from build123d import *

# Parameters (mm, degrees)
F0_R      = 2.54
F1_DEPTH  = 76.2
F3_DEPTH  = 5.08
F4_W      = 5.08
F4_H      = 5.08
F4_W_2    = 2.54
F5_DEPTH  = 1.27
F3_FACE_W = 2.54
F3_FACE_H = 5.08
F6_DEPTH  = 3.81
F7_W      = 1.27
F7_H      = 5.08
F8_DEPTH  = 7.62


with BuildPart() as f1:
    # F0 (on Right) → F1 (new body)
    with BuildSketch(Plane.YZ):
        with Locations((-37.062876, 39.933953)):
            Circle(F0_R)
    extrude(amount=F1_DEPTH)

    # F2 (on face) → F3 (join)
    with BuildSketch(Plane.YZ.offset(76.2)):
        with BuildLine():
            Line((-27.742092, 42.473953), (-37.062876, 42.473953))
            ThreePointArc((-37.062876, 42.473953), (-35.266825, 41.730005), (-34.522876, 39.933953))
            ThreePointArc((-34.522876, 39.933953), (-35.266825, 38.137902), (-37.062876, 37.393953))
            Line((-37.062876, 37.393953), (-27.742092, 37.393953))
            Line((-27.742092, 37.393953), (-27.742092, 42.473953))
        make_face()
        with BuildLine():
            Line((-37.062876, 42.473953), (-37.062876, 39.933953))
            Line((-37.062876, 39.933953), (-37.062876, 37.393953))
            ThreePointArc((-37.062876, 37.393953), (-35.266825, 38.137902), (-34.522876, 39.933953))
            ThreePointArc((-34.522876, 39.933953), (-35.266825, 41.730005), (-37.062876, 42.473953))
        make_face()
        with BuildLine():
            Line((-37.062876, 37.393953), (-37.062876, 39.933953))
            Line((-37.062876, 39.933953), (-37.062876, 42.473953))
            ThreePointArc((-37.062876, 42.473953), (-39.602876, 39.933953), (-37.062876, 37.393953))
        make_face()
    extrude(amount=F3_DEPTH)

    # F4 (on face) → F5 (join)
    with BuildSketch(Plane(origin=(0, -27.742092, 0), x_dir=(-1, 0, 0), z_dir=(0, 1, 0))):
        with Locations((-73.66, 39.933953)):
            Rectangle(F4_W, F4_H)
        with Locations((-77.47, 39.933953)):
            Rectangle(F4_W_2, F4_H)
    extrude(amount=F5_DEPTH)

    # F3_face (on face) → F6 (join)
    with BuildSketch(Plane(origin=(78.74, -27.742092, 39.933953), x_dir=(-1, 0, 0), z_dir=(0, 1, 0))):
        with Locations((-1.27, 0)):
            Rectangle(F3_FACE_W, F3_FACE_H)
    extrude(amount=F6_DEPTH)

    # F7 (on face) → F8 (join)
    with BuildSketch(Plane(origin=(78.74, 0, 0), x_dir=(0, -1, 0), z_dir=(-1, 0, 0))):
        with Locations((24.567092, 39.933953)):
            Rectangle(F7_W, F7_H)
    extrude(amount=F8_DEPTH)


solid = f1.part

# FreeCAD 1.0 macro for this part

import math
import FreeCAD as App
import Part
import Sketcher
from FreeCAD import Vector
Q = App.Units.Quantity

doc = App.newDocument("Part")
params = doc.addObject("Spreadsheet::Sheet", "Params")
for row, (alias, value) in enumerate([
    ("sketch1_diameter", "0.2 in"),
    ("pad1_length", "3 in"),
    ("sketch2_radius", "0.1 in"),
    ("pad2_length", "0.2 in"),
    ("sketch3_width", "0.3 in"),
    ("sketch3_height", "0.2 in"),
    ("pad3_length", "0.05 in"),
    ("sketch4_width", "0.1 in"),
    ("sketch4_height", "0.2 in"),
    ("pad4_length", "0.15 in"),
    ("sketch5_height", "0.2 in"),
    ("sketch5_width", "0.05 in"),
    ("pad5_length", "0.3 in"),
], start=1):
    params.set(f"A{row}", alias)
    params.set(f"B{row}", "=" + value)
    params.setAlias(f"B{row}", alias)

body = doc.addObject("PartDesign::Body", "Body")

# Sketch on YZ plane
sketch1 = body.newObject("Sketcher::SketchObject", "Sketch")
sketch1.AttachmentSupport = (doc.getObject("YZ_Plane"), [""])
sketch1.MapMode = "FlatFace"
sketch1.addGeometry(Part.Circle(Vector(-37.1, 39.9, 0), Vector(0, 0, 1), 2.5), False)
sketch1.addConstraint([
    Sketcher.Constraint("Diameter", 0, Q("0.2 in")),
    Sketcher.Constraint("DistanceX", 0, 3, -1, 1, Q("37.062876 mm")),
    Sketcher.Constraint("DistanceY", -1, 1, 0, 3, Q("39.933953 mm")),
])
sketch1.setExpression("Constraints[0]", "Params.sketch1_diameter")
pad1 = body.newObject("PartDesign::Pad", "Pad")
pad1.Profile = sketch1
pad1.setExpression("Length", "Params.pad1_length")

# Sketch on YZ plane
sketch2 = body.newObject("Sketcher::SketchObject", "Sketch001")
sketch2.AttachmentSupport = (doc.getObject("YZ_Plane"), [""])
sketch2.MapMode = "FlatFace"
sketch2.AttachmentOffset = App.Placement(Vector(0, 0, 3 * 25.4), App.Rotation())
sketch2.addGeometry([
    Part.LineSegment(Vector(-27.7, 42.5, 0), Vector(-37.1, 42.5, 0)),
    Part.ArcOfCircle(Part.Circle(Vector(-37.1, 39.9, 0), Vector(0, 0, 1), 2.5), math.radians(90), math.radians(270)),
    Part.LineSegment(Vector(-37.1, 37.4, 0), Vector(-27.7, 37.4, 0)),
    Part.LineSegment(Vector(-27.7, 37.4, 0), Vector(-27.7, 42.5, 0)),
], False)
sketch2.addConstraint([
    Sketcher.Constraint("Tangent", 0, 2, 1, 1),
    Sketcher.Constraint("Tangent", 1, 2, 2, 1),
    Sketcher.Constraint("Coincident", 2, 2, 3, 1),
    Sketcher.Constraint("Coincident", 3, 2, 0, 1),
    Sketcher.Constraint("Horizontal", 0),
    Sketcher.Constraint("Horizontal", 2),
    Sketcher.Constraint("Vertical", 3),
    Sketcher.Constraint("Radius", 1, Q("0.1 in")),
    Sketcher.Constraint("DistanceX", 0, 2, 0, 1, Q("9.320784 mm")),
    Sketcher.Constraint("DistanceX", 2, 2, -1, 1, Q("27.742092 mm")),
    Sketcher.Constraint("DistanceY", -1, 1, 1, 3, Q("39.933953 mm")),
])
sketch2.setExpression("Constraints[7]", "Params.sketch2_radius")
pad2 = body.newObject("PartDesign::Pad", "Pad001")
pad2.Profile = sketch2
pad2.setExpression("Length", "Params.pad2_length")

# Sketch on XZ plane
sketch3 = body.newObject("Sketcher::SketchObject", "Sketch002")
sketch3.AttachmentSupport = (doc.getObject("XZ_Plane"), [""])
sketch3.MapMode = "FlatFace"
sketch3.AttachmentOffset = App.Placement(Vector(0, 0, 27.742092), App.Rotation())
sketch3.addGeometry([
    Part.LineSegment(Vector(71, 37, 0), Vector(71, 42, 0)),
    Part.LineSegment(Vector(71, 42, 0), Vector(79, 42, 0)),
    Part.LineSegment(Vector(79, 42, 0), Vector(79, 37, 0)),
    Part.LineSegment(Vector(79, 37, 0), Vector(71, 37, 0)),
], False)
sketch3.addConstraint([
    Sketcher.Constraint("Coincident", 0, 2, 1, 1),
    Sketcher.Constraint("Coincident", 1, 2, 2, 1),
    Sketcher.Constraint("Coincident", 2, 2, 3, 1),
    Sketcher.Constraint("Coincident", 3, 2, 0, 1),
    Sketcher.Constraint("Vertical", 0),
    Sketcher.Constraint("Horizontal", 1),
    Sketcher.Constraint("Vertical", 2),
    Sketcher.Constraint("Horizontal", 3),
    Sketcher.Constraint("DistanceX", 1, 1, 1, 2, Q("0.3 in")),
    Sketcher.Constraint("DistanceY", 0, 1, 0, 2, Q("0.2 in")),
    Sketcher.Constraint("DistanceX", -1, 1, 0, 2, Q("2.8 in")),
    Sketcher.Constraint("DistanceY", -1, 1, 0, 2, Q("42.473953 mm")),
])
sketch3.setExpression("Constraints[8]", "Params.sketch3_width")
sketch3.setExpression("Constraints[9]", "Params.sketch3_height")
pad3 = body.newObject("PartDesign::Pad", "Pad002")
pad3.Profile = sketch3
pad3.setExpression("Length", "Params.pad3_length")
pad3.Reversed = True

# Sketch on XZ plane
sketch4 = body.newObject("Sketcher::SketchObject", "Sketch003")
sketch4.AttachmentSupport = (doc.getObject("XZ_Plane"), [""])
sketch4.MapMode = "FlatFace"
sketch4.AttachmentOffset = App.Placement(Vector(0, 0, 27.742092), App.Rotation())
sketch4.addGeometry([
    Part.LineSegment(Vector(81.3, 42.5, 0), Vector(81.3, 37.4, 0)),
    Part.LineSegment(Vector(81.3, 37.4, 0), Vector(78.7, 37.4, 0)),
    Part.LineSegment(Vector(78.7, 37.4, 0), Vector(78.7, 42.5, 0)),
    Part.LineSegment(Vector(78.7, 42.5, 0), Vector(81.3, 42.5, 0)),
], False)
sketch4.addConstraint([
    Sketcher.Constraint("Coincident", 0, 2, 1, 1),
    Sketcher.Constraint("Coincident", 1, 2, 2, 1),
    Sketcher.Constraint("Coincident", 2, 2, 3, 1),
    Sketcher.Constraint("Coincident", 3, 2, 0, 1),
    Sketcher.Constraint("Vertical", 0),
    Sketcher.Constraint("Horizontal", 1),
    Sketcher.Constraint("Vertical", 2),
    Sketcher.Constraint("Horizontal", 3),
    Sketcher.Constraint("DistanceX", 1, 2, 1, 1, Q("0.1 in")),
    Sketcher.Constraint("DistanceY", 0, 2, 0, 1, Q("0.2 in")),
    Sketcher.Constraint("DistanceX", -1, 1, 0, 2, Q("3.2 in")),
    Sketcher.Constraint("DistanceY", -1, 1, 0, 2, Q("37.393953 mm")),
])
sketch4.setExpression("Constraints[8]", "Params.sketch4_width")
sketch4.setExpression("Constraints[9]", "Params.sketch4_height")
pad4 = body.newObject("PartDesign::Pad", "Pad003")
pad4.Profile = sketch4
pad4.setExpression("Length", "Params.pad4_length")
pad4.Reversed = True

# Sketch on YZ plane
sketch5 = body.newObject("Sketcher::SketchObject", "Sketch004")
sketch5.AttachmentSupport = (doc.getObject("YZ_Plane"), [""])
sketch5.MapMode = "FlatFace"
sketch5.AttachmentOffset = App.Placement(Vector(0, 0, 3.1 * 25.4), App.Rotation())
sketch5.addGeometry([
    Part.LineSegment(Vector(-23.9, 42.5, 0), Vector(-23.9, 37.4, 0)),
    Part.LineSegment(Vector(-23.9, 37.4, 0), Vector(-25.2, 37.4, 0)),
    Part.LineSegment(Vector(-25.2, 37.4, 0), Vector(-25.2, 42.5, 0)),
    Part.LineSegment(Vector(-25.2, 42.5, 0), Vector(-23.9, 42.5, 0)),
], False)
sketch5.addConstraint([
    Sketcher.Constraint("Coincident", 0, 2, 1, 1),
    Sketcher.Constraint("Coincident", 1, 2, 2, 1),
    Sketcher.Constraint("Coincident", 2, 2, 3, 1),
    Sketcher.Constraint("Coincident", 3, 2, 0, 1),
    Sketcher.Constraint("Vertical", 0),
    Sketcher.Constraint("Horizontal", 1),
    Sketcher.Constraint("Vertical", 2),
    Sketcher.Constraint("Horizontal", 3),
    Sketcher.Constraint("DistanceY", 0, 2, 0, 1, Q("0.2 in")),
    Sketcher.Constraint("DistanceX", 1, 2, 1, 1, Q("0.05 in")),
    Sketcher.Constraint("DistanceX", 0, 2, -1, 1, Q("23.932092 mm")),
    Sketcher.Constraint("DistanceY", -1, 1, 0, 2, Q("37.393953 mm")),
])
sketch5.setExpression("Constraints[8]", "Params.sketch5_height")
sketch5.setExpression("Constraints[9]", "Params.sketch5_width")
pad5 = body.newObject("PartDesign::Pad", "Pad004")
pad5.Profile = sketch5
pad5.setExpression("Length", "Params.pad5_length")
pad5.Reversed = True

doc.recompute()
